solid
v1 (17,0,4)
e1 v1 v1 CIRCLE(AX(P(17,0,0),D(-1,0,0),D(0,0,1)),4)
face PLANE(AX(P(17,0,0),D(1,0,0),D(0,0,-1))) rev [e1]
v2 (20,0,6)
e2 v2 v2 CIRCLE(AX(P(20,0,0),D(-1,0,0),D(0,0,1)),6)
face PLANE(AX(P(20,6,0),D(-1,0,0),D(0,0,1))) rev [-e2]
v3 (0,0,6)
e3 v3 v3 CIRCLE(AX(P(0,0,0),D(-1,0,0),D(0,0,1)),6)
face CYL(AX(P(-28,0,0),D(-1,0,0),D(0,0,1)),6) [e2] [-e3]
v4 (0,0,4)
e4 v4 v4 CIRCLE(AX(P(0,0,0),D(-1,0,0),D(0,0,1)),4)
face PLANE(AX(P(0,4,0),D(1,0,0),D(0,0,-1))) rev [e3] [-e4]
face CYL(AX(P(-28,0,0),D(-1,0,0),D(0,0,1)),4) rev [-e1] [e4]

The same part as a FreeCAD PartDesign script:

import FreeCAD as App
import Part
import Sketcher
from FreeCAD import Vector


def add_polygon(sketch, points):
    """Adds a closed chain of lines whose ends are joined by coincident constraints."""
    first, n = sketch.GeometryCount, len(points)
    for a, b in zip(points, points[1:] + points[:1]):
        sketch.addGeometry(Part.LineSegment(App.Vector(*a, 0), App.Vector(*b, 0)), False)
    for i in range(n):
        sketch.addConstraint(Sketcher.Constraint("Coincident", first + i, 2, first + (i + 1) % n, 1))

doc = App.newDocument("Part")
body = doc.addObject("PartDesign::Body", "Body")

sketch1 = body.newObject("Sketcher::SketchObject", "Sketch")
sketch1.AttachmentSupport = (doc.getObject("XY_Plane"), [""])
sketch1.MapMode = "FlatFace"
add_polygon(sketch1, [(0, 6), (0, 4), (17, 4), (17, 0), (20, 0), (20, 6)])
sketch1.addConstraint([
    Sketcher.Constraint("Vertical", 0),
    Sketcher.Constraint("Horizontal", 1),
    Sketcher.Constraint("Vertical", 2),
    Sketcher.Constraint("Horizontal", 3),
    Sketcher.Constraint("Vertical", 4),
    Sketcher.Constraint("Horizontal", 5),
    Sketcher.Constraint("PointOnObject", 0, 2, -2),
    Sketcher.Constraint("PointOnObject", 2, 2, -1),
    Sketcher.Constraint("DistanceX", 1, 1, 1, 2, 17.0),
    Sketcher.Constraint("DistanceX", 3, 1, 3, 2, 3.0),
    Sketcher.Constraint("DistanceY", 0, 2, 0, 1, 2.0),
    Sketcher.Constraint("DistanceY", 2, 2, 2, 1, 4.0),
])
revolution = body.newObject("PartDesign::Revolution", "Revolution")
revolution.Profile = sketch1
revolution.ReferenceAxis = (sketch1, ["H_Axis"])
revolution.Angle = 360

doc.recompute()
